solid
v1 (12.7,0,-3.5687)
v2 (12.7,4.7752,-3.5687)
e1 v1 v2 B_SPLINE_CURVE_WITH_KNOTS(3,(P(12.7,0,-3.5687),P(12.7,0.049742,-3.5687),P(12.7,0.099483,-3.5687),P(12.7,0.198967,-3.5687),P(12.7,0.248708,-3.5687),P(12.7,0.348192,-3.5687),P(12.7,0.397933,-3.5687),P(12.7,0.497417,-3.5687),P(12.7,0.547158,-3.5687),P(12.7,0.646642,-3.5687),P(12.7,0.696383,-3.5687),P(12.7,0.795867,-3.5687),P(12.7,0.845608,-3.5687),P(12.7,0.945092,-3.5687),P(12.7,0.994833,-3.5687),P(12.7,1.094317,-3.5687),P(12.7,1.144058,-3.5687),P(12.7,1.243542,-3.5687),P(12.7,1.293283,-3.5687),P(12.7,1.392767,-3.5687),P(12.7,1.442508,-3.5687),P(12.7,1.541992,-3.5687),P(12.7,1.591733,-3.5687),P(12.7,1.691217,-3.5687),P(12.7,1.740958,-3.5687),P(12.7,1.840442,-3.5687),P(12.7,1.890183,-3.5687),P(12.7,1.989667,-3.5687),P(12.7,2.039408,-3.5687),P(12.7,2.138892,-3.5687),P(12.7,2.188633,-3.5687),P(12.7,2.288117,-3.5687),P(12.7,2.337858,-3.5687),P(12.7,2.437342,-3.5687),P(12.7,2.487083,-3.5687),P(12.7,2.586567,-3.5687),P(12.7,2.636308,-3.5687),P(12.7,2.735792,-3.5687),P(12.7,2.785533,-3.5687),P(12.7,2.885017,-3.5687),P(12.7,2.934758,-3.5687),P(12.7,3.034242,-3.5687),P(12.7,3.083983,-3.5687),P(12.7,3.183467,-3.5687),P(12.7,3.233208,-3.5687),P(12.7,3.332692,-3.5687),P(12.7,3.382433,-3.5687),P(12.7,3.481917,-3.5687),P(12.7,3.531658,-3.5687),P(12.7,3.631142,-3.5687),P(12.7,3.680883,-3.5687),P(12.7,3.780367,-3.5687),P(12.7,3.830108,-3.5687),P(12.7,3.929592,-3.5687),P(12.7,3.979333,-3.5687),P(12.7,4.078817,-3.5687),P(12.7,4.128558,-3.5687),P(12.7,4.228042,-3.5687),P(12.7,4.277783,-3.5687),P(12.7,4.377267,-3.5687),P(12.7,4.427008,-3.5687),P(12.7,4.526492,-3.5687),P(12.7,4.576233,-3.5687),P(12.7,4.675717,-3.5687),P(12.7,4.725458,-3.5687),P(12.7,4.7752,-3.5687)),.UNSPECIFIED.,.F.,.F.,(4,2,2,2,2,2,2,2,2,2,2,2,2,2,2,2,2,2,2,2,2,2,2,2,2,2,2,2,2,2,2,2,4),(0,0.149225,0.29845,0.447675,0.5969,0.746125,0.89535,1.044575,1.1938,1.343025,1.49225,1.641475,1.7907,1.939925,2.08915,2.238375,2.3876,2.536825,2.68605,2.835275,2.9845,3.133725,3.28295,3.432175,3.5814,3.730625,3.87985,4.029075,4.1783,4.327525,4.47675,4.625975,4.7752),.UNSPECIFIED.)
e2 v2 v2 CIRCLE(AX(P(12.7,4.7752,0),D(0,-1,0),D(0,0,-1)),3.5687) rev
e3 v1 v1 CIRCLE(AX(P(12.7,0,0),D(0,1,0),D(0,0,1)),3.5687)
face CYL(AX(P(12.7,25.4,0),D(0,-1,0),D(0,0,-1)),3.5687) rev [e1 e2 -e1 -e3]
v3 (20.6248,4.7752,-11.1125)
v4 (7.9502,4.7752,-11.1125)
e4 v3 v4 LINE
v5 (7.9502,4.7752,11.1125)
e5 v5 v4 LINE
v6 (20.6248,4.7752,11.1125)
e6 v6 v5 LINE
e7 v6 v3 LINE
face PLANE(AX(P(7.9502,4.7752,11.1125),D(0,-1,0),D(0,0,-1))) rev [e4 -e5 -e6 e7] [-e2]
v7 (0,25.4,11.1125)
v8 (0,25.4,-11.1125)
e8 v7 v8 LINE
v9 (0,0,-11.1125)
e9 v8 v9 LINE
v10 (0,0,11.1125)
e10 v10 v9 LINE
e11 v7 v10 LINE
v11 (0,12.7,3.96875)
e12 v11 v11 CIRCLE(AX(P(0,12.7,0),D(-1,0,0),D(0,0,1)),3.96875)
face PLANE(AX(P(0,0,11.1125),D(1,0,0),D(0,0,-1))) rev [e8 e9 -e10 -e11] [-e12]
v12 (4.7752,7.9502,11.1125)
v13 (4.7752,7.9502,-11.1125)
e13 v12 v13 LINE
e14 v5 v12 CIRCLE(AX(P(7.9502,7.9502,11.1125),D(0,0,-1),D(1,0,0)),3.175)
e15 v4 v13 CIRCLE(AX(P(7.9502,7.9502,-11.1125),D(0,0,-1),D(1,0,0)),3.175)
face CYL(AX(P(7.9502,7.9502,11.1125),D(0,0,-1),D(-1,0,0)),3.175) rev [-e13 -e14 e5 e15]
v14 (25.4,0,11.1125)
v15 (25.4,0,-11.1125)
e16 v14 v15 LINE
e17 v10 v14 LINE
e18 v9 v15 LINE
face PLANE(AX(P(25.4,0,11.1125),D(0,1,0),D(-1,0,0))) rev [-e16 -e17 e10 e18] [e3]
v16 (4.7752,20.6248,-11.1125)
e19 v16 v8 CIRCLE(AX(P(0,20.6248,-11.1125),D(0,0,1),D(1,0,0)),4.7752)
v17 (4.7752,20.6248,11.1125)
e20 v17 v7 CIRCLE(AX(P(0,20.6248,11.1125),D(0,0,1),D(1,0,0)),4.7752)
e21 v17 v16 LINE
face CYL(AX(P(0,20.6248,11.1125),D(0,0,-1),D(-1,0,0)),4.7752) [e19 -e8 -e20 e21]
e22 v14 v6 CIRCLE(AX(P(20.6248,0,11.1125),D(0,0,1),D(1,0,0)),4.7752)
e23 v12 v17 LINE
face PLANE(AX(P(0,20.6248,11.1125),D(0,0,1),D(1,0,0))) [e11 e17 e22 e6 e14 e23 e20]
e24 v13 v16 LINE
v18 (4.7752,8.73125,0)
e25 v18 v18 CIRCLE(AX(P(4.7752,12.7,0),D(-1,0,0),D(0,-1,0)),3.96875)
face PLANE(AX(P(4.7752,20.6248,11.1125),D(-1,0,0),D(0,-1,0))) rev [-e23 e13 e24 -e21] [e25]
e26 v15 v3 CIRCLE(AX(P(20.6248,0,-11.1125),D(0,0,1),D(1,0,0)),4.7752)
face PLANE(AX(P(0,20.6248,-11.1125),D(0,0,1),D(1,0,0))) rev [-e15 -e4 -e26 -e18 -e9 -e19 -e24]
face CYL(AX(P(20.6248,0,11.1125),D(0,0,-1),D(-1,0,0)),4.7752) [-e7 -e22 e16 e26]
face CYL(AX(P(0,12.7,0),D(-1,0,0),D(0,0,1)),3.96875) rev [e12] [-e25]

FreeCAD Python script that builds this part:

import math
import FreeCAD as App
import Part
import Sketcher
Q = App.Units.Quantity

doc = App.newDocument("Part")
body = doc.addObject("PartDesign::Body", "Body")

# Sketch on XY plane
sketch1 = body.newObject("Sketcher::SketchObject", "Sketch")
sketch1.AttachmentSupport = (doc.getObject("XY_Plane"), [""])
sketch1.MapMode = "FlatFace"
sketch1.addGeometry([
    Part.LineSegment(App.Vector(0, 25.4, 0), App.Vector(0, 0, 0)),  # 0
    Part.LineSegment(App.Vector(0, 0, 0), App.Vector(25.4, 0, 0)),  # 1
    Part.ArcOfCircle(Part.Circle(App.Vector(20.6, 0, 0), App.Vector(0, 0, 1), 4.8), math.radians(0), math.radians(90)),  # 2
    Part.LineSegment(App.Vector(20.6, 4.8, 0), App.Vector(8, 4.8, 0)),  # 3
    Part.ArcOfCircle(Part.Circle(App.Vector(8, 8, 0), App.Vector(0, 0, 1), 3.2), math.radians(-180), math.radians(-90)),  # 4
    Part.LineSegment(App.Vector(4.8, 8, 0), App.Vector(4.8, 20.6, 0)),  # 5
    Part.ArcOfCircle(Part.Circle(App.Vector(0, 20.6, 0), App.Vector(0, 0, 1), 4.8), math.radians(0), math.radians(90)),  # 6
], False)
sketch1.addConstraint([
    Sketcher.Constraint("Coincident", 0, 2, 1, 1),
    Sketcher.Constraint("Coincident", 1, 2, 2, 1),
    Sketcher.Constraint("Tangent", 2, 2, 3, 1),
    Sketcher.Constraint("Tangent", 3, 2, 4, 2),
    Sketcher.Constraint("Tangent", 4, 1, 5, 1),
    Sketcher.Constraint("Tangent", 5, 2, 6, 1),
    Sketcher.Constraint("Coincident", 6, 2, 0, 1),
    Sketcher.Constraint("Vertical", 0),
    Sketcher.Constraint("Horizontal", 1),
    Sketcher.Constraint("Horizontal", 3),
    Sketcher.Constraint("Vertical", 5),
    Sketcher.Constraint("Coincident", 0, 2, -1, 1),
    Sketcher.Constraint("Equal", 2, 6),
    Sketcher.Constraint("PointOnObject", 2, 3, -1),
    Sketcher.Constraint("PointOnObject", 6, 3, -2),
    Sketcher.Constraint("Equal", 1, 0),
    Sketcher.Constraint("DistanceX", 1, 1, 1, 2, Q("1 in")),
    Sketcher.Constraint("Radius", 2, Q("0.188 in")),
    Sketcher.Constraint("Radius", 4, Q("0.125 in")),
])
pad1 = body.newObject("PartDesign::Pad", "Pad")
pad1.Profile = sketch1
pad1.Length = Q("0.875 in")
pad1.Midplane = True

# Sketch on XZ plane
sketch2 = body.newObject("Sketcher::SketchObject", "Sketch001")
sketch2.AttachmentSupport = (doc.getObject("XZ_Plane"), [""])
sketch2.MapMode = "FlatFace"
sketch2.addGeometry(Part.Circle(App.Vector(12.7, 0, 0), App.Vector(0, 0, 1), 3.6), False)
sketch2.addConstraint([
    Sketcher.Constraint("PointOnObject", 0, 3, -1),
    Sketcher.Constraint("Diameter", 0, Q("0.281 in")),
    Sketcher.Constraint("DistanceX", -1, 1, 0, 3, Q("0.5 in")),
])
pocket1 = body.newObject("PartDesign::Pocket", "Pocket")
pocket1.Profile = sketch2
pocket1.Type = "ThroughAll"

# Sketch on YZ plane
sketch3 = body.newObject("Sketcher::SketchObject", "Sketch002")
sketch3.AttachmentSupport = (doc.getObject("YZ_Plane"), [""])
sketch3.MapMode = "FlatFace"
sketch3.addGeometry(Part.Circle(App.Vector(12.7, 0, 0), App.Vector(0, 0, 1), 3.6), False)
sketch3.addConstraint([
    Sketcher.Constraint("PointOnObject", 0, 3, -1),
    Sketcher.Constraint("Diameter", 0, Q("0.281 in")),
    Sketcher.Constraint("DistanceX", -1, 1, 0, 3, Q("0.5 in")),
])
pocket2 = body.newObject("PartDesign::Pocket", "Pocket001")
pocket2.Profile = sketch3
pocket2.Type = "ThroughAll"
pocket2.Reversed = True

# Sketch on YZ plane
sketch4 = body.newObject("Sketcher::SketchObject", "Sketch003")
sketch4.AttachmentSupport = (doc.getObject("YZ_Plane"), [""])
sketch4.MapMode = "FlatFace"
sketch4.addGeometry(Part.Circle(App.Vector(12.7, 0, 0), App.Vector(0, 0, 1), 4), False)
sketch4.addConstraint([
    Sketcher.Constraint("PointOnObject", 0, 3, -1),
    Sketcher.Constraint("Diameter", 0, Q("0.3125 in")),
    Sketcher.Constraint("DistanceX", -1, 1, 0, 3, Q("0.5 in")),
])
doc.recompute()
hole = body.newObject("PartDesign::Hole", "Hole")
hole.Profile = sketch4
hole.ThreadType = "None"
hole.Diameter = Q("0.3125 in")
hole.DepthType = "Dimension"
hole.Depth = Q("0.9375 in")
hole.DrillPoint = "Angled"
hole.DrillPointAngle = 118
hole.Reversed = True

doc.recompute()
